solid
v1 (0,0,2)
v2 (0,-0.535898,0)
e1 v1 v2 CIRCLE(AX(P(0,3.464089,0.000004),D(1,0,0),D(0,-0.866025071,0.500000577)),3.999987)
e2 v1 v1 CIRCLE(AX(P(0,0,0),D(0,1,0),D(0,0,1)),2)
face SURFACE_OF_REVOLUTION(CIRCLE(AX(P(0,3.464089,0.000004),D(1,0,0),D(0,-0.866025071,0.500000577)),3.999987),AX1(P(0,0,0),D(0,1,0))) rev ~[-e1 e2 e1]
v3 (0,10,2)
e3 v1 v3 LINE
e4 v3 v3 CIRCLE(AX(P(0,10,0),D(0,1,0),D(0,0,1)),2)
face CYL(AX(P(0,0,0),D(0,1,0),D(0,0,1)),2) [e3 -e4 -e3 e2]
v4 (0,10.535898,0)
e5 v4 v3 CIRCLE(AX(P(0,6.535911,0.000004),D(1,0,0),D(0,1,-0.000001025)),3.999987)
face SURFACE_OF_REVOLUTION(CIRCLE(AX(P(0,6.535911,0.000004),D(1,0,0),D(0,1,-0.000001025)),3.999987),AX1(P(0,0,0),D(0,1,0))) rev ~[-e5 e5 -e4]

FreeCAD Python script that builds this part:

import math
import FreeCAD as App
import Part
import Sketcher

V = App.Vector
Q = App.Units.Quantity

doc = App.newDocument("Part")
body = doc.addObject("PartDesign::Body", "Body")

# Sketch on YZ plane
sketch1 = body.newObject("Sketcher::SketchObject", "Sketch")
sketch1.AttachmentSupport = (doc.getObject("YZ_Plane"), [""])
sketch1.MapMode = "FlatFace"
sketch1.addGeometry(Part.ArcOfCircle(Part.Circle(V(6.535911, 0.000004, 0), V(0, 0, 1), 3.999987), math.radians(-0.000059), math.radians(30.000038)), False)
sketch1.addGeometry(Part.LineSegment(V(10, 2, 0), V(0, 2, 0)), False)
sketch1.addGeometry(Part.ArcOfCircle(Part.Circle(V(3.464089, 0.000004, 0), V(0, 0, 1), 3.999987), math.radians(149.999962), math.radians(180.000059)), False)
sketch1.addGeometry(Part.LineSegment(V(-0.535898, 0, 0), V(10.535898, 0, 0)), False)
sketch1.addConstraint(Sketcher.Constraint("Coincident", 0, 2, 1, 1))
sketch1.addConstraint(Sketcher.Constraint("Coincident", 1, 2, 2, 1))
sketch1.addConstraint(Sketcher.Constraint("Coincident", 2, 2, 3, 1))
sketch1.addConstraint(Sketcher.Constraint("Coincident", 3, 2, 0, 1))
sketch1.addConstraint(Sketcher.Constraint("Horizontal", 1))
sketch1.addConstraint(Sketcher.Constraint("Horizontal", 3))
sketch1.addConstraint(Sketcher.Constraint("Equal", 0, 2))
sketch1.addConstraint(Sketcher.Constraint("PointOnObject", 1, 2, -2))
sketch1.addConstraint(Sketcher.Constraint("PointOnObject", 2, 2, -1))
sketch1.addConstraint(Sketcher.Constraint("Horizontal", 0, 3, 2, 3))
sketch1.addConstraint(Sketcher.Constraint("DistanceX", 1, 2, 1, 1, Q("10 mm")))
sketch1.addConstraint(Sketcher.Constraint("DistanceY", -1, 1, 0, 2, Q("2 mm")))
sketch1.addConstraint(Sketcher.Constraint("Radius", 0, Q("3.999987 mm")))
sketch1.addConstraint(Sketcher.Constraint("DistanceX", 0, 2, 3, 2, Q("0.535898 mm")))
revolution = body.newObject("PartDesign::Revolution", "Revolution")
revolution.Profile = sketch1
revolution.ReferenceAxis = (sketch1, ["H_Axis"])
revolution.Angle = 360

doc.recompute()
